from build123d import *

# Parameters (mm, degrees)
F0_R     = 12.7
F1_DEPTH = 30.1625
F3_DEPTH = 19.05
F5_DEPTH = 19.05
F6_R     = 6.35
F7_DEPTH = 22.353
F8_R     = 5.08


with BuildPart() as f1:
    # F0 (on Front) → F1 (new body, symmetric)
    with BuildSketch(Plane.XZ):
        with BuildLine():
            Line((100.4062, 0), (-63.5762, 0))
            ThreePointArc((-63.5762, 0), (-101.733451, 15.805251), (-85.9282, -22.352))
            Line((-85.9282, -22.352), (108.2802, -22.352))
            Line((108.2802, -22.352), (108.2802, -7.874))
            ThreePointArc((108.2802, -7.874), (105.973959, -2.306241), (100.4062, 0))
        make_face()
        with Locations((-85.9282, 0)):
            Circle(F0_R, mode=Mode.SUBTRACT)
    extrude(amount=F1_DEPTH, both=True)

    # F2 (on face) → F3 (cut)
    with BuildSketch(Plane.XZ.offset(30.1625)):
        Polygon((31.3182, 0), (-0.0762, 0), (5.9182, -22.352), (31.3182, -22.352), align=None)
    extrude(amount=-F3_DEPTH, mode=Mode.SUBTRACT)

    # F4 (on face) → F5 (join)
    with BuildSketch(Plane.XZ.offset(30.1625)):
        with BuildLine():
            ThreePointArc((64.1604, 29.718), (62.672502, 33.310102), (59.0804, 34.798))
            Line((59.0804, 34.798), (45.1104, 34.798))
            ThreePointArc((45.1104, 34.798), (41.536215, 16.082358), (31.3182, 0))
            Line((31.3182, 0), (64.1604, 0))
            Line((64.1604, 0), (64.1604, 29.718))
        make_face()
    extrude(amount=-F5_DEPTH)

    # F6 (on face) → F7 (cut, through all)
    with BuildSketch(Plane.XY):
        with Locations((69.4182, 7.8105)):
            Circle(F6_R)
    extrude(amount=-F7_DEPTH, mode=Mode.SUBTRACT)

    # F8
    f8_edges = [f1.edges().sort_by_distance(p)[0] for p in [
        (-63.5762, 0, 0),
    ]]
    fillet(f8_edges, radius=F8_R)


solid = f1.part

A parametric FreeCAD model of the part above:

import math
import FreeCAD as App
import Part
import Sketcher
Q = App.Units.Quantity


def edges_at(feature, points):
    """Names of the edges that pass closest to the given points."""
    edges = feature.Shape.Edges
    near = lambda p: min(range(len(edges)), key=lambda i: edges[i].distToShape(Part.Vertex(*p))[0])
    return sorted({f"Edge{near(p) + 1}" for p in points})


def add_polygon(sketch, points):
    """Adds a closed chain of lines whose ends are joined by coincident constraints."""
    first, n = sketch.GeometryCount, len(points)
    for a, b in zip(points, points[1:] + points[:1]):
        sketch.addGeometry(Part.LineSegment(App.Vector(*a, 0), App.Vector(*b, 0)), False)
    for i in range(n):
        sketch.addConstraint(Sketcher.Constraint("Coincident", first + i, 2, first + (i + 1) % n, 1))

doc = App.newDocument("Part")
body = doc.addObject("PartDesign::Body", "Body")

# Sketch on XZ plane
sketch1 = body.newObject("Sketcher::SketchObject", "Sketch")
sketch1.AttachmentSupport = (doc.getObject("XZ_Plane"), [""])
sketch1.MapMode = "FlatFace"
sketch1.addGeometry([
    Part.LineSegment(App.Vector(100, 0, 0), App.Vector(-64, 0, 0)),  # 0
    Part.ArcOfCircle(Part.Circle(App.Vector(-86, 0, 0), App.Vector(0, 0, 1), 22), math.radians(0), math.radians(270)),  # 1
    Part.LineSegment(App.Vector(-86, -22, 0), App.Vector(108, -22, 0)),  # 2
    Part.LineSegment(App.Vector(108, -22, 0), App.Vector(108, -8, 0)),  # 3
    Part.ArcOfCircle(Part.Circle(App.Vector(100, -8, 0), App.Vector(0, 0, 1), 8), math.radians(0), math.radians(90)),  # 4
    Part.Circle(App.Vector(-86, 0, 0), App.Vector(0, 0, 1), 13),  # 5
], False)
sketch1.addConstraint([
    Sketcher.Constraint("Coincident", 0, 2, 1, 1),
    Sketcher.Constraint("Tangent", 1, 2, 2, 1),
    Sketcher.Constraint("Coincident", 2, 2, 3, 1),
    Sketcher.Constraint("Tangent", 3, 2, 4, 1),
    Sketcher.Constraint("Tangent", 4, 2, 0, 1),
    Sketcher.Constraint("Horizontal", 0),
    Sketcher.Constraint("Horizontal", 2),
    Sketcher.Constraint("Vertical", 3),
    Sketcher.Constraint("Coincident", 5, 3, 1, 3),
    Sketcher.Constraint("PointOnObject", 1, 3, -1),
    Sketcher.Constraint("PointOnObject", 0, 2, -1),
    Sketcher.Constraint("Diameter", 5, Q("1 in")),
    Sketcher.Constraint("Radius", 1, Q("0.88 in")),
    Sketcher.Constraint("Radius", 4, Q("0.31 in")),
    Sketcher.Constraint("DistanceX", 0, 2, 0, 1, Q("6.456 in")),
    Sketcher.Constraint("DistanceX", 1, 3, -1, 1, Q("3.383 in")),
])
pad1 = body.newObject("PartDesign::Pad", "Pad")
pad1.Profile = sketch1
pad1.Length = Q("2.375 in")
pad1.Midplane = True

# Sketch on XZ plane
sketch2 = body.newObject("Sketcher::SketchObject", "Sketch001")
sketch2.AttachmentSupport = (doc.getObject("XZ_Plane"), [""])
sketch2.MapMode = "FlatFace"
sketch2.AttachmentOffset = App.Placement(App.Vector(0, 0, 1.1875 * 25.4), App.Rotation())
add_polygon(sketch2, [(31, 0), (0, 0), (6, -22), (31, -22)])  # lines 0-3
sketch2.addConstraint([
    Sketcher.Constraint("Horizontal", 0),
    Sketcher.Constraint("Horizontal", 2),
    Sketcher.Constraint("Vertical", 3),
    Sketcher.Constraint("PointOnObject", 0, 2, -1),
    Sketcher.Constraint("DistanceX", 2, 1, 2, 2, Q("1 in")),
    Sketcher.Constraint("DistanceY", 3, 1, 3, 2, Q("0.88 in")),
    Sketcher.Constraint("DistanceX", 0, 2, 0, 1, Q("1.236 in")),
    Sketcher.Constraint("DistanceX", 0, 2, -1, 1, Q("0.003 in")),
])
pocket1 = body.newObject("PartDesign::Pocket", "Pocket")
pocket1.Profile = sketch2
pocket1.Length = Q("0.75 in")

# Sketch on XZ plane
sketch3 = body.newObject("Sketcher::SketchObject", "Sketch002")
sketch3.AttachmentSupport = (doc.getObject("XZ_Plane"), [""])
sketch3.MapMode = "FlatFace"
sketch3.AttachmentOffset = App.Placement(App.Vector(0, 0, 1.1875 * 25.4), App.Rotation())
sketch3.addGeometry([
    Part.ArcOfCircle(Part.Circle(App.Vector(59, 30, 0), App.Vector(0, 0, 1), 5), math.radians(0), math.radians(90)),  # 0
    Part.LineSegment(App.Vector(59, 35, 0), App.Vector(45, 35, 0)),  # 1
    Part.ArcOfCircle(Part.Circle(App.Vector(-6, 35, 0), App.Vector(0, 0, 1), 51), math.radians(-43), math.radians(0)),  # 2
    Part.LineSegment(App.Vector(31, 0, 0), App.Vector(64, 0, 0)),  # 3
    Part.LineSegment(App.Vector(64, 0, 0), App.Vector(64, 30, 0)),  # 4
], False)
sketch3.addConstraint([
    Sketcher.Constraint("Tangent", 0, 2, 1, 1),
    Sketcher.Constraint("Coincident", 1, 2, 2, 2),
    Sketcher.Constraint("Coincident", 2, 1, 3, 1),
    Sketcher.Constraint("Coincident", 3, 2, 4, 1),
    Sketcher.Constraint("Tangent", 4, 2, 0, 1),
    Sketcher.Constraint("Horizontal", 1),
    Sketcher.Constraint("Horizontal", 3),
    Sketcher.Constraint("Vertical", 4),
    Sketcher.Constraint("PointOnObject", 2, 1, -1),
    Sketcher.Constraint("Radius", 0, Q("0.2000001 in")),
    Sketcher.Constraint("DistanceX", 1, 2, 1, 1, Q("0.55 in")),
    Sketcher.Constraint("DistanceY", 4, 1, 4, 2, Q("1.17 in")),
    Sketcher.Constraint("DistanceX", 3, 1, 3, 2, Q("1.293 in")),
    Sketcher.Constraint("DistanceX", 2, 3, 0, 3, Q("2.5500002 in")),
    Sketcher.Constraint("DistanceX", -1, 1, 0, 3, Q("2.3259999 in")),
])
pad2 = body.newObject("PartDesign::Pad", "Pad001")
pad2.Profile = sketch3
pad2.Length = Q("0.75 in")
pad2.Reversed = True

# Sketch on XY plane
sketch4 = body.newObject("Sketcher::SketchObject", "Sketch003")
sketch4.AttachmentSupport = (doc.getObject("XY_Plane"), [""])
sketch4.MapMode = "FlatFace"
sketch4.addGeometry(Part.Circle(App.Vector(69, 8, 0), App.Vector(0, 0, 1), 6), False)
sketch4.addConstraint([
    Sketcher.Constraint("Diameter", 0, Q("0.5 in")),
    Sketcher.Constraint("DistanceX", -1, 1, 0, 3, Q("2.733 in")),
    Sketcher.Constraint("DistanceY", -1, 1, 0, 3, Q("0.3075 in")),
])
pocket2 = body.newObject("PartDesign::Pocket", "Pocket001")
pocket2.Profile = sketch4
pocket2.Type = "ThroughAll"
doc.recompute()

fillet = body.newObject("PartDesign::Fillet", "Fillet")
fillet.Base = (pocket2, edges_at(pocket2, [(-63.576, 0, 0)]))
fillet.Radius = Q("0.2 in")

doc.recompute()
